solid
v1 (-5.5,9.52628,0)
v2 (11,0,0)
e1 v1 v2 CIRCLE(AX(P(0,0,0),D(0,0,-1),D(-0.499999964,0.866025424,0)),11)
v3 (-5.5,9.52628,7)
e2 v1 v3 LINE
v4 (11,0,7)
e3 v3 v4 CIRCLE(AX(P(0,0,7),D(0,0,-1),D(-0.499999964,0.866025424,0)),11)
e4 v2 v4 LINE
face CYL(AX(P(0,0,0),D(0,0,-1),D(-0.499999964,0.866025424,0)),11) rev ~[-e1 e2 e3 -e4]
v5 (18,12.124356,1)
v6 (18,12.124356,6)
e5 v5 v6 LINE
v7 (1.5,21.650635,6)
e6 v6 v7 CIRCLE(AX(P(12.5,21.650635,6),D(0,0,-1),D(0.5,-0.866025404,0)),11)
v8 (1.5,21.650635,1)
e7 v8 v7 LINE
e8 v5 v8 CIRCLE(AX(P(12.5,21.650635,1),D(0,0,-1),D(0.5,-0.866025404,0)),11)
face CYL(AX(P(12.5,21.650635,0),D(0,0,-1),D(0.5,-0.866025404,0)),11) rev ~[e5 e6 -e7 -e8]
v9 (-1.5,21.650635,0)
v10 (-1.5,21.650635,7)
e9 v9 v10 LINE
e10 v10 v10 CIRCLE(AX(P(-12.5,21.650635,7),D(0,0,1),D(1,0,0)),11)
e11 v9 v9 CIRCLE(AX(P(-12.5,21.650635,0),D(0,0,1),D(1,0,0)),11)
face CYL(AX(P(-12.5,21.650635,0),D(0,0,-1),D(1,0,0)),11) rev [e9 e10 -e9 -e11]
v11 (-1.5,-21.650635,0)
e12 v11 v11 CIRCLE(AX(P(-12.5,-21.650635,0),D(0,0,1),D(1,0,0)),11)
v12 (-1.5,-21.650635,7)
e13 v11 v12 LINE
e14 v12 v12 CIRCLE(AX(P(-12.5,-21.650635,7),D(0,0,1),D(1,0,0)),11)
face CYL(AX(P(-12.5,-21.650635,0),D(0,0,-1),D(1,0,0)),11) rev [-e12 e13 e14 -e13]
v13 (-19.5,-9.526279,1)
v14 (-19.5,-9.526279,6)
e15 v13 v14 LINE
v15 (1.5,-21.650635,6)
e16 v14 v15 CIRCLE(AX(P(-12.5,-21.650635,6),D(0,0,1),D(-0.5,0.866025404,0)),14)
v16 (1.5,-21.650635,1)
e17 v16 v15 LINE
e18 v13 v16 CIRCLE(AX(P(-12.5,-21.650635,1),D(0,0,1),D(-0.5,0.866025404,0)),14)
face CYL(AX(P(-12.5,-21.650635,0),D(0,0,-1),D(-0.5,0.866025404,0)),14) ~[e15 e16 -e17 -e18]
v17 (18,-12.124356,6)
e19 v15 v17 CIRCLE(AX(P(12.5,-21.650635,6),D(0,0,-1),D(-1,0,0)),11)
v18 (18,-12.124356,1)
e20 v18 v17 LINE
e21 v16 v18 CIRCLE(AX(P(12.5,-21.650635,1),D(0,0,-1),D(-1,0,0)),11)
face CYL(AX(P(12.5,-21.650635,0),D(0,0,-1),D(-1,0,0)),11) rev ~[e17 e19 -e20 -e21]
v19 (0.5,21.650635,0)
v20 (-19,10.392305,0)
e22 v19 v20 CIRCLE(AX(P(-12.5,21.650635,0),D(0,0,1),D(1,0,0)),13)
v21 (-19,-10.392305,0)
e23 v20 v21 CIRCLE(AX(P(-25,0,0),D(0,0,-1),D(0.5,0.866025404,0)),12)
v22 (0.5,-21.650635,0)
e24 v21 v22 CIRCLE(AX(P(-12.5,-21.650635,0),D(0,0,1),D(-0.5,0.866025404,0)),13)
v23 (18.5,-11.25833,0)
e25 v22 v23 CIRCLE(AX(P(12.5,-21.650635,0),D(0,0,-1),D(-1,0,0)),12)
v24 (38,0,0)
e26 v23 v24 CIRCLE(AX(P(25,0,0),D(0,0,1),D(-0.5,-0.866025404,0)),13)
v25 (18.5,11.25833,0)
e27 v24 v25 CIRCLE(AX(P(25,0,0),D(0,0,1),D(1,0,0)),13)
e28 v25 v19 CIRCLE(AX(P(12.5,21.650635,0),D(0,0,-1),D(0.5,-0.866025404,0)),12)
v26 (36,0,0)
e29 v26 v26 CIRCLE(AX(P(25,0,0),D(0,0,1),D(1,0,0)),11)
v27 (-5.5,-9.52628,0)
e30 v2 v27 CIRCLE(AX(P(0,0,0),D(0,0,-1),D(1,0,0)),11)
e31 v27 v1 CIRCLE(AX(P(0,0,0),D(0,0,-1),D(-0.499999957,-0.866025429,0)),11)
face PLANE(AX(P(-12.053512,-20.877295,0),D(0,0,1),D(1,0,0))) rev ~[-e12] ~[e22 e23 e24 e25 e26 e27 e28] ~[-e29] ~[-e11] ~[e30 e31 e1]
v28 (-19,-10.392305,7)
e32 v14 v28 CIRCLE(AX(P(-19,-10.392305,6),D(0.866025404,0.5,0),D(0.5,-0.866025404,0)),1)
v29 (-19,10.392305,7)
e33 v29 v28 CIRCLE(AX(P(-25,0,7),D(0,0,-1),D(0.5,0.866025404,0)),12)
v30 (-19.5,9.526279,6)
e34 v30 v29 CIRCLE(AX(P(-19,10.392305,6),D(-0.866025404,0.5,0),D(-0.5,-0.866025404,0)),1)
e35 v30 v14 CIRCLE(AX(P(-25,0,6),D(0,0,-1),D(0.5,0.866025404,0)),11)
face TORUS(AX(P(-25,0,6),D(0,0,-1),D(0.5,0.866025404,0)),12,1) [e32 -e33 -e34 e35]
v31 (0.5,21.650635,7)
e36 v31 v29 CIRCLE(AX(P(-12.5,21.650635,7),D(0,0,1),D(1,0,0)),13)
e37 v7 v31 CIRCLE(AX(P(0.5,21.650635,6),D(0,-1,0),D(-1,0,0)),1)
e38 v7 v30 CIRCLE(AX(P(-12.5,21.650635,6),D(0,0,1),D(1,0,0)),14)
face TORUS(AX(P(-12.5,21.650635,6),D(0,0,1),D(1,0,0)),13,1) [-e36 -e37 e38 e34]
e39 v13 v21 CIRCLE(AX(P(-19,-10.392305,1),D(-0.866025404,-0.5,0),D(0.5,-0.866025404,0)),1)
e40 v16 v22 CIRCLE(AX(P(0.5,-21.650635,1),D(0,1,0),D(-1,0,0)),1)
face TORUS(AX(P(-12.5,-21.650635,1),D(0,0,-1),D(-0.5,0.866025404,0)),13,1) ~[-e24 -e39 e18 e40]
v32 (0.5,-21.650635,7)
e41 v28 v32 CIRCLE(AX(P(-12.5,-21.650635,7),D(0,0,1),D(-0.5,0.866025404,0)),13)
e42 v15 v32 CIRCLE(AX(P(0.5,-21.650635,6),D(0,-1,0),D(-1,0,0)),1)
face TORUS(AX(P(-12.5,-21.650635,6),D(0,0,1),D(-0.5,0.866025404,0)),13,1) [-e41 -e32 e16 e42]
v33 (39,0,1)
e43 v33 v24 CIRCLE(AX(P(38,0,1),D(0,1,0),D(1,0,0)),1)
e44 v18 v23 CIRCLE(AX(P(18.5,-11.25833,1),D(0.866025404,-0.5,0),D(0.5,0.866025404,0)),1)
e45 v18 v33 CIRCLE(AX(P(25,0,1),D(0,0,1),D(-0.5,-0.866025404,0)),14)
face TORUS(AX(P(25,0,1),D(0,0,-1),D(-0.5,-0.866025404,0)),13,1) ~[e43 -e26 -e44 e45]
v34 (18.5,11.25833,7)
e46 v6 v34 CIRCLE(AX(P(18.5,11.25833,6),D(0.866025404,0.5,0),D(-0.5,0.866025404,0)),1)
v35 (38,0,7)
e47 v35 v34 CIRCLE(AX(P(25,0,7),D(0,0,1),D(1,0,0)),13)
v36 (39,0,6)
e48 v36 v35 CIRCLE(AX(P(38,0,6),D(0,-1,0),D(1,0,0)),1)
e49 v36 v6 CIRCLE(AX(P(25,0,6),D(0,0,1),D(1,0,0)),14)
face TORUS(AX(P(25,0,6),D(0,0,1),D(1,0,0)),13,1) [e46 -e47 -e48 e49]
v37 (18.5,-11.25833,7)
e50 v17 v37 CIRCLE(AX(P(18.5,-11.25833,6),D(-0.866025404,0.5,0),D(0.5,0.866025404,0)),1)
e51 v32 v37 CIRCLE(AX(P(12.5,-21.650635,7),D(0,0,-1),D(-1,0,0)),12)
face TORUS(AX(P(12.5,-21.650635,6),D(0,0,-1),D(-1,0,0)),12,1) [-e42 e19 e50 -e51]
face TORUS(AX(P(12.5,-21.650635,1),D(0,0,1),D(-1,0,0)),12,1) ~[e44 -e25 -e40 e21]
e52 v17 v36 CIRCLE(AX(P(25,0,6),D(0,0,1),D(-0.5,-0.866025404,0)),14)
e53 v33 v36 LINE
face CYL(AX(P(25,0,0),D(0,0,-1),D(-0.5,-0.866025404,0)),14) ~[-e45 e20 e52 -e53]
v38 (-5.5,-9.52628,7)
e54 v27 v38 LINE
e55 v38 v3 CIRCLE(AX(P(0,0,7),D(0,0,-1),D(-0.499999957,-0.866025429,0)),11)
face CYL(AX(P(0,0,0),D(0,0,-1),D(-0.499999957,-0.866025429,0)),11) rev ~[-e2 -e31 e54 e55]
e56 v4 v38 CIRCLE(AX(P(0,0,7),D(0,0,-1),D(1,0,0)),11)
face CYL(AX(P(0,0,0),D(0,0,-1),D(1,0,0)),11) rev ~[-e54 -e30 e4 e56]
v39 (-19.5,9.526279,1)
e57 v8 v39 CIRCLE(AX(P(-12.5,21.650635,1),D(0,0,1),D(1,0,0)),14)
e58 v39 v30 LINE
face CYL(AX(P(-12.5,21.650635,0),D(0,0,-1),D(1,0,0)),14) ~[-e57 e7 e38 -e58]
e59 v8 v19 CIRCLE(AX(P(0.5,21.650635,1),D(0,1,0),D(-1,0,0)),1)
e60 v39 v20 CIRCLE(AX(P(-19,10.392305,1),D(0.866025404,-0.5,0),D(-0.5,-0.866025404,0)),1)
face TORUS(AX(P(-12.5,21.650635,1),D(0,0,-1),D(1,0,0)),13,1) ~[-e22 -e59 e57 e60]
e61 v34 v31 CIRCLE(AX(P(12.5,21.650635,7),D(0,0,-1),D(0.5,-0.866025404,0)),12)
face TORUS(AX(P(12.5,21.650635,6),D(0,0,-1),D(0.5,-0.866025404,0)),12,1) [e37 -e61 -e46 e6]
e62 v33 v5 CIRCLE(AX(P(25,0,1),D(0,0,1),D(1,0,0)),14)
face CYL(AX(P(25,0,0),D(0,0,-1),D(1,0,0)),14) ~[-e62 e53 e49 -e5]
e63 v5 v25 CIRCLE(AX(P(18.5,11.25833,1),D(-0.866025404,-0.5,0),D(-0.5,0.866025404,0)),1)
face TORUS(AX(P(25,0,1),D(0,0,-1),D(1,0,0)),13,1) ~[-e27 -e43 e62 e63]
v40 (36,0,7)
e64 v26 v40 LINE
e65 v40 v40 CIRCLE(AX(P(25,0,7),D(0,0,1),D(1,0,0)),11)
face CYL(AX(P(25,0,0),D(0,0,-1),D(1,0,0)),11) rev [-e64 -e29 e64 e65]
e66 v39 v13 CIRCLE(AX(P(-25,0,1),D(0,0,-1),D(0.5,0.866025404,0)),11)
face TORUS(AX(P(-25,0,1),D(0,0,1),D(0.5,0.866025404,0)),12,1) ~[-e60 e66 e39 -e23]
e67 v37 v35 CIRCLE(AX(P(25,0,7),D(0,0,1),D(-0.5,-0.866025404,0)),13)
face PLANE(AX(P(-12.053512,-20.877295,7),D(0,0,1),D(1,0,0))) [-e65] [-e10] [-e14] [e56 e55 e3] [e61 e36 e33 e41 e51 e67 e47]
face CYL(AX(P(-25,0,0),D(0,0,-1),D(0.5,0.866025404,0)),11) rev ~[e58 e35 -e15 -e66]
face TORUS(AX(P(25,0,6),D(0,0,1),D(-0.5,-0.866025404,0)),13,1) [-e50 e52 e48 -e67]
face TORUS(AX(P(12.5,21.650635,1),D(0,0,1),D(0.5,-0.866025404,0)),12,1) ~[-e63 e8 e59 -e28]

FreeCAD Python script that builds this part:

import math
import FreeCAD as App
import Part
import Sketcher

V = App.Vector


def edges_at(feature, points):
    """Names of the edges that pass closest to the given points."""
    edges = feature.Shape.Edges
    near = lambda p: min(range(len(edges)), key=lambda i: edges[i].distToShape(Part.Vertex(*p))[0])
    return sorted({f"Edge{near(p) + 1}" for p in points})

doc = App.newDocument("Part")
body = doc.addObject("PartDesign::Body", "Body")

# Sketch on XY plane
sketch1 = body.newObject("Sketcher::SketchObject", "Sketch")
sketch1.AttachmentSupport = (doc.getObject("XY_Plane"), [""])
sketch1.MapMode = "FlatFace"
sketch1.addGeometry(Part.ArcOfCircle(Part.Circle(V(12.5, 21.650635, 0), V(0, 0, 1), 11), math.radians(180), math.radians(300)), False)
sketch1.addGeometry(Part.ArcOfCircle(Part.Circle(V(-12.5, 21.650635, 0), V(0, 0, 1), 14), math.radians(0), math.radians(240)), False)
sketch1.addGeometry(Part.ArcOfCircle(Part.Circle(V(-25, 0, 0), V(0, 0, 1), 11), math.radians(-60), math.radians(60)), False)
sketch1.addGeometry(Part.ArcOfCircle(Part.Circle(V(-12.5, -21.650635, 0), V(0, 0, 1), 14), math.radians(120), math.radians(360)), False)
sketch1.addGeometry(Part.ArcOfCircle(Part.Circle(V(12.5, -21.650635, 0), V(0, 0, 1), 11), math.radians(60), math.radians(180)), False)
sketch1.addGeometry(Part.ArcOfCircle(Part.Circle(V(25, 0, 0), V(0, 0, 1), 14), math.radians(-120), math.radians(0)), False)
sketch1.addGeometry(Part.ArcOfCircle(Part.Circle(V(25, 0, 0), V(0, 0, 1), 14), math.radians(0), math.radians(120)), False)
sketch1.addGeometry(Part.Circle(V(-12.5, -21.650635, 0), V(0, 0, 1), 11), False)
sketch1.addGeometry(Part.ArcOfCircle(Part.Circle(V(0, 0, 0), V(0, 0, 1), 11), math.radians(119.999998), math.radians(240.000003)), False)
sketch1.addGeometry(Part.ArcOfCircle(Part.Circle(V(0, 0, 0), V(0, 0, 1), 11), math.radians(0), math.radians(119.999998)), False)
sketch1.addGeometry(Part.ArcOfCircle(Part.Circle(V(0, 0, 0), V(0, 0, 1), 11), math.radians(-119.999997), math.radians(0)), False)
sketch1.addGeometry(Part.Circle(V(-12.5, 21.650635, 0), V(0, 0, 1), 11), False)
sketch1.addGeometry(Part.Circle(V(25, 0, 0), V(0, 0, 1), 11), False)
sketch1.addConstraint(Sketcher.Constraint("Tangent", 0, 1, 1, 1))
sketch1.addConstraint(Sketcher.Constraint("Tangent", 1, 2, 2, 2))
sketch1.addConstraint(Sketcher.Constraint("Tangent", 2, 1, 3, 1))
sketch1.addConstraint(Sketcher.Constraint("Tangent", 3, 2, 4, 2))
sketch1.addConstraint(Sketcher.Constraint("Tangent", 4, 1, 5, 1))
sketch1.addConstraint(Sketcher.Constraint("Tangent", 5, 2, 6, 1))
sketch1.addConstraint(Sketcher.Constraint("Tangent", 6, 2, 0, 2))
sketch1.addConstraint(Sketcher.Constraint("Tangent", 8, 1, 9, 2))
sketch1.addConstraint(Sketcher.Constraint("Tangent", 9, 1, 10, 2))
sketch1.addConstraint(Sketcher.Constraint("Tangent", 10, 1, 8, 2))
sketch1.addConstraint(Sketcher.Constraint("Coincident", 8, 3, -1, 1))
sketch1.addConstraint(Sketcher.Constraint("Coincident", 7, 3, 3, 3))
sketch1.addConstraint(Sketcher.Constraint("Coincident", 11, 3, 1, 3))
sketch1.addConstraint(Sketcher.Constraint("Coincident", 12, 3, 5, 3))
sketch1.addConstraint(Sketcher.Constraint("Equal", 0, 2))
sketch1.addConstraint(Sketcher.Constraint("Equal", 1, 3))
sketch1.addConstraint(Sketcher.Constraint("Equal", 2, 4))
sketch1.addConstraint(Sketcher.Constraint("Equal", 3, 5))
sketch1.addConstraint(Sketcher.Constraint("Equal", 5, 6))
sketch1.addConstraint(Sketcher.Constraint("Equal", 4, 7))
sketch1.addConstraint(Sketcher.Constraint("Equal", 7, 8))
sketch1.addConstraint(Sketcher.Constraint("Equal", 10, 11))
sketch1.addConstraint(Sketcher.Constraint("Equal", 11, 12))
sketch1.addConstraint(Sketcher.Constraint("Symmetric", 0, 3, 3, 3, -1, 1))
sketch1.addConstraint(Sketcher.Constraint("Symmetric", 0, 3, 1, 3, -2))
sketch1.addConstraint(Sketcher.Constraint("PointOnObject", 5, 3, -1))
sketch1.addConstraint(Sketcher.Constraint("PointOnObject", 5, 2, -1))
sketch1.addConstraint(Sketcher.Constraint("PointOnObject", 9, 1, -1))
sketch1.addConstraint(Sketcher.Constraint("Horizontal", 1, 2, 8, 1))
sketch1.addConstraint(Sketcher.Constraint("Horizontal", 2, 1, 10, 1))
sketch1.addConstraint(Sketcher.Constraint("Diameter", 7, 22.0))
sketch1.addConstraint(Sketcher.Constraint("Radius", 1, 14.0))
sketch1.addConstraint(Sketcher.Constraint("DistanceX", 2, 3, -1, 1, 25.0))
pad1 = body.newObject("PartDesign::Pad", "Pad")
pad1.Profile = sketch1
pad1.Length = 7
doc.recompute()

fillet = body.newObject("PartDesign::Fillet", "Fillet")
fillet.Base = (pad1, edges_at(pad1, [
    (7, -12.124, 7),
    (-19.5, -33.775, 7),
    (-14, 0, 7),
    (-19.5, 33.775, 7),
    (7, 12.124, 7),
    (39, 0, 3.5),
    (7, -12.124, 0),
    (-19.5, -33.775, 0),
    (39, 0, 3.5),
    (-14, 0, 0),
    (-19.5, 33.775, 0),
    (7, 12.124, 0),
]))
fillet.Radius = 1

doc.recompute()
